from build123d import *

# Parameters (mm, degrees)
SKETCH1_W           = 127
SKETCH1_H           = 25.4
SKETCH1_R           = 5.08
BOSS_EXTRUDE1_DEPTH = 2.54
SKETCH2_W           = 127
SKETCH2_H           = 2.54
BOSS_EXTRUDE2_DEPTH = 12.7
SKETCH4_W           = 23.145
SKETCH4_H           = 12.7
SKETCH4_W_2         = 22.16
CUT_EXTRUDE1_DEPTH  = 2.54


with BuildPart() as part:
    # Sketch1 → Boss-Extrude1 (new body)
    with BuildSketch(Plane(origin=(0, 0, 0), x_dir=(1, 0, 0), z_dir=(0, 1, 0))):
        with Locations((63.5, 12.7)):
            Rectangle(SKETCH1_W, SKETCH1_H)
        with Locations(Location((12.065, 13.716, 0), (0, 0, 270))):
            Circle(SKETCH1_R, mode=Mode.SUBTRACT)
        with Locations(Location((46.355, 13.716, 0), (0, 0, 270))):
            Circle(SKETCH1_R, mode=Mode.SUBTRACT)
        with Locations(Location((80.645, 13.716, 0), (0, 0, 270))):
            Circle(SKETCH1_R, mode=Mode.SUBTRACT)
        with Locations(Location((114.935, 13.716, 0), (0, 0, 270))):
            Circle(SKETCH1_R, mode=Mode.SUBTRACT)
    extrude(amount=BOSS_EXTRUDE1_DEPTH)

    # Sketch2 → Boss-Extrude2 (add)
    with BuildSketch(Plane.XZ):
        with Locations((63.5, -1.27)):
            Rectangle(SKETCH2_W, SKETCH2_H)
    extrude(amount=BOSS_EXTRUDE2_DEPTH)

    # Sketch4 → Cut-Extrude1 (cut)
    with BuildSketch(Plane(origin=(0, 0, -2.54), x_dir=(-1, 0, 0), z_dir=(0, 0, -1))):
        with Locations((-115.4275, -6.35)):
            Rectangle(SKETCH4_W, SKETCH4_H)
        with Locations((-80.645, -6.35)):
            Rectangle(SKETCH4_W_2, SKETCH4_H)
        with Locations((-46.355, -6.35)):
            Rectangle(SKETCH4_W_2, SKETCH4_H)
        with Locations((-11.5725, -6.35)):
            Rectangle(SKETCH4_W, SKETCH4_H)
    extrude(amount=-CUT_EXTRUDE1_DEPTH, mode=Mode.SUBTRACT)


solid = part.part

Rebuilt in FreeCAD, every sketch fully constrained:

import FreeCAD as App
import Part
import Sketcher

V = App.Vector
Q = App.Units.Quantity


def add_polygon(sketch, points):
    """Adds a closed chain of lines whose ends are joined by coincident constraints."""
    first, n = sketch.GeometryCount, len(points)
    for a, b in zip(points, points[1:] + points[:1]):
        sketch.addGeometry(Part.LineSegment(App.Vector(*a, 0), App.Vector(*b, 0)), False)
    for i in range(n):
        sketch.addConstraint(Sketcher.Constraint("Coincident", first + i, 2, first + (i + 1) % n, 1))

doc = App.newDocument("Part")
body = doc.addObject("PartDesign::Body", "Body")

# Sketch on XZ plane
sketch1 = body.newObject("Sketcher::SketchObject", "Sketch")
sketch1.AttachmentSupport = (doc.getObject("XZ_Plane"), [""])
sketch1.MapMode = "FlatFace"
add_polygon(sketch1, [(0, -25), (0, 0), (127, 0), (127, -25)])  # lines 0-3
sketch1.addGeometry(Part.Circle(V(12, -14, 0), V(0, 0, 1), 5), False)  # 4
sketch1.addGeometry(Part.Circle(V(46, -14, 0), V(0, 0, 1), 5), False)  # 5
sketch1.addGeometry(Part.Circle(V(81, -14, 0), V(0, 0, 1), 5), False)  # 6
sketch1.addGeometry(Part.Circle(V(115, -14, 0), V(0, 0, 1), 5), False)  # 7
sketch1.addConstraint(Sketcher.Constraint("Vertical", 0))
sketch1.addConstraint(Sketcher.Constraint("Horizontal", 1))
sketch1.addConstraint(Sketcher.Constraint("Vertical", 2))
sketch1.addConstraint(Sketcher.Constraint("Horizontal", 3))
sketch1.addConstraint(Sketcher.Constraint("Coincident", 0, 2, -1, 1))
sketch1.addConstraint(Sketcher.Constraint("Equal", 4, 5))
sketch1.addConstraint(Sketcher.Constraint("Equal", 5, 6))
sketch1.addConstraint(Sketcher.Constraint("Equal", 6, 7))
sketch1.addConstraint(Sketcher.Constraint("Horizontal", 4, 3, 5, 3))
sketch1.addConstraint(Sketcher.Constraint("Horizontal", 5, 3, 6, 3))
sketch1.addConstraint(Sketcher.Constraint("Horizontal", 6, 3, 7, 3))
sketch1.addConstraint(Sketcher.Constraint("Diameter", 4, Q("0.4 in")))
sketch1.addConstraint(Sketcher.Constraint("DistanceX", 1, 1, 1, 2, Q("5 in")))
sketch1.addConstraint(Sketcher.Constraint("DistanceY", 0, 1, 0, 2, Q("1 in")))
sketch1.addConstraint(Sketcher.Constraint("DistanceX", 4, 3, 6, 3, Q("2.7 in")))
sketch1.addConstraint(Sketcher.Constraint("DistanceX", 5, 3, 7, 3, Q("2.7 in")))
sketch1.addConstraint(Sketcher.Constraint("DistanceY", 4, 3, -1, 1, Q("0.54 in")))
sketch1.addConstraint(Sketcher.Constraint("DistanceX", 4, 3, 5, 3, Q("1.35 in")))
sketch1.addConstraint(Sketcher.Constraint("DistanceX", -1, 1, 4, 3, Q("0.475 in")))
pad1 = body.newObject("PartDesign::Pad", "Pad")
pad1.Profile = sketch1
pad1.Length = Q("0.1 in")
pad1.Reversed = True

# Sketch on XZ plane
sketch2 = body.newObject("Sketcher::SketchObject", "Sketch001")
sketch2.AttachmentSupport = (doc.getObject("XZ_Plane"), [""])
sketch2.MapMode = "FlatFace"
add_polygon(sketch2, [(0, 0), (0, -2.5), (127, -2.5), (127, 0)])  # lines 0-3
sketch2.addConstraint(Sketcher.Constraint("Vertical", 0))
sketch2.addConstraint(Sketcher.Constraint("Horizontal", 1))
sketch2.addConstraint(Sketcher.Constraint("Vertical", 2))
sketch2.addConstraint(Sketcher.Constraint("Horizontal", 3))
sketch2.addConstraint(Sketcher.Constraint("Coincident", 3, 2, -1, 1))
sketch2.addConstraint(Sketcher.Constraint("DistanceX", 1, 1, 1, 2, Q("5 in")))
sketch2.addConstraint(Sketcher.Constraint("DistanceY", 0, 2, 0, 1, Q("0.1 in")))
pad2 = body.newObject("PartDesign::Pad", "Pad001")
pad2.Profile = sketch2
pad2.Length = Q("0.5 in")

# Sketch on XY plane
sketch3 = body.newObject("Sketcher::SketchObject", "Sketch002")
sketch3.AttachmentSupport = (doc.getObject("XY_Plane"), [""])
sketch3.MapMode = "FlatFace"
sketch3.AttachmentOffset = App.Placement(V(0, 0, -0.1 * 25.4), App.Rotation())
add_polygon(sketch3, [(127, 0), (127, -13), (104, -13), (104, 0)])  # lines 0-3
add_polygon(sketch3, [(92, 0), (92, -13), (70, -13), (70, 0)])  # lines 4-7
add_polygon(sketch3, [(57, 0), (57, -13), (35, -13), (35, 0)])  # lines 8-11
add_polygon(sketch3, [(23, 0), (23, -13), (0, -13), (0, 0)])  # lines 12-15
sketch3.addConstraint(Sketcher.Constraint("Vertical", 0))
sketch3.addConstraint(Sketcher.Constraint("Horizontal", 1))
sketch3.addConstraint(Sketcher.Constraint("Vertical", 2))
sketch3.addConstraint(Sketcher.Constraint("Horizontal", 3))
sketch3.addConstraint(Sketcher.Constraint("Vertical", 4))
sketch3.addConstraint(Sketcher.Constraint("Horizontal", 5))
sketch3.addConstraint(Sketcher.Constraint("Vertical", 6))
sketch3.addConstraint(Sketcher.Constraint("Horizontal", 7))
sketch3.addConstraint(Sketcher.Constraint("Vertical", 8))
sketch3.addConstraint(Sketcher.Constraint("Horizontal", 9))
sketch3.addConstraint(Sketcher.Constraint("Vertical", 10))
sketch3.addConstraint(Sketcher.Constraint("Horizontal", 11))
sketch3.addConstraint(Sketcher.Constraint("Vertical", 12))
sketch3.addConstraint(Sketcher.Constraint("Horizontal", 13))
sketch3.addConstraint(Sketcher.Constraint("Vertical", 14))
sketch3.addConstraint(Sketcher.Constraint("Horizontal", 15))
sketch3.addConstraint(Sketcher.Constraint("Coincident", 14, 2, -1, 1))
sketch3.addConstraint(Sketcher.Constraint("PointOnObject", 2, 2, -1))
sketch3.addConstraint(Sketcher.Constraint("PointOnObject", 6, 2, -1))
sketch3.addConstraint(Sketcher.Constraint("PointOnObject", 10, 2, -1))
sketch3.addConstraint(Sketcher.Constraint("Horizontal", 1, 2, 4, 2))
sketch3.addConstraint(Sketcher.Constraint("Horizontal", 5, 2, 8, 2))
sketch3.addConstraint(Sketcher.Constraint("Horizontal", 9, 2, 12, 2))
sketch3.addConstraint(Sketcher.Constraint("Equal", 7, 9))
sketch3.addConstraint(Sketcher.Constraint("Equal", 3, 13))
sketch3.addConstraint(Sketcher.Constraint("DistanceY", 0, 2, 0, 1, Q("0.5 in")))
sketch3.addConstraint(Sketcher.Constraint("DistanceX", -1, 1, 0, 2, Q("5 in")))
sketch3.addConstraint(Sketcher.Constraint("DistanceX", 5, 2, 1, 2, Q("1.35 in")))
sketch3.addConstraint(Sketcher.Constraint("DistanceX", 8, 2, 4, 2, Q("1.35 in")))
sketch3.addConstraint(Sketcher.Constraint("DistanceX", 12, 2, 8, 2, Q("1.35 in")))
sketch3.addConstraint(Sketcher.Constraint("DistanceX", 1, 2, 1, 1, 23.145))
pocket1 = body.newObject("PartDesign::Pocket", "Pocket")
pocket1.Profile = sketch3
pocket1.Length = Q("0.1 in")
pocket1.Reversed = True

doc.recompute()
